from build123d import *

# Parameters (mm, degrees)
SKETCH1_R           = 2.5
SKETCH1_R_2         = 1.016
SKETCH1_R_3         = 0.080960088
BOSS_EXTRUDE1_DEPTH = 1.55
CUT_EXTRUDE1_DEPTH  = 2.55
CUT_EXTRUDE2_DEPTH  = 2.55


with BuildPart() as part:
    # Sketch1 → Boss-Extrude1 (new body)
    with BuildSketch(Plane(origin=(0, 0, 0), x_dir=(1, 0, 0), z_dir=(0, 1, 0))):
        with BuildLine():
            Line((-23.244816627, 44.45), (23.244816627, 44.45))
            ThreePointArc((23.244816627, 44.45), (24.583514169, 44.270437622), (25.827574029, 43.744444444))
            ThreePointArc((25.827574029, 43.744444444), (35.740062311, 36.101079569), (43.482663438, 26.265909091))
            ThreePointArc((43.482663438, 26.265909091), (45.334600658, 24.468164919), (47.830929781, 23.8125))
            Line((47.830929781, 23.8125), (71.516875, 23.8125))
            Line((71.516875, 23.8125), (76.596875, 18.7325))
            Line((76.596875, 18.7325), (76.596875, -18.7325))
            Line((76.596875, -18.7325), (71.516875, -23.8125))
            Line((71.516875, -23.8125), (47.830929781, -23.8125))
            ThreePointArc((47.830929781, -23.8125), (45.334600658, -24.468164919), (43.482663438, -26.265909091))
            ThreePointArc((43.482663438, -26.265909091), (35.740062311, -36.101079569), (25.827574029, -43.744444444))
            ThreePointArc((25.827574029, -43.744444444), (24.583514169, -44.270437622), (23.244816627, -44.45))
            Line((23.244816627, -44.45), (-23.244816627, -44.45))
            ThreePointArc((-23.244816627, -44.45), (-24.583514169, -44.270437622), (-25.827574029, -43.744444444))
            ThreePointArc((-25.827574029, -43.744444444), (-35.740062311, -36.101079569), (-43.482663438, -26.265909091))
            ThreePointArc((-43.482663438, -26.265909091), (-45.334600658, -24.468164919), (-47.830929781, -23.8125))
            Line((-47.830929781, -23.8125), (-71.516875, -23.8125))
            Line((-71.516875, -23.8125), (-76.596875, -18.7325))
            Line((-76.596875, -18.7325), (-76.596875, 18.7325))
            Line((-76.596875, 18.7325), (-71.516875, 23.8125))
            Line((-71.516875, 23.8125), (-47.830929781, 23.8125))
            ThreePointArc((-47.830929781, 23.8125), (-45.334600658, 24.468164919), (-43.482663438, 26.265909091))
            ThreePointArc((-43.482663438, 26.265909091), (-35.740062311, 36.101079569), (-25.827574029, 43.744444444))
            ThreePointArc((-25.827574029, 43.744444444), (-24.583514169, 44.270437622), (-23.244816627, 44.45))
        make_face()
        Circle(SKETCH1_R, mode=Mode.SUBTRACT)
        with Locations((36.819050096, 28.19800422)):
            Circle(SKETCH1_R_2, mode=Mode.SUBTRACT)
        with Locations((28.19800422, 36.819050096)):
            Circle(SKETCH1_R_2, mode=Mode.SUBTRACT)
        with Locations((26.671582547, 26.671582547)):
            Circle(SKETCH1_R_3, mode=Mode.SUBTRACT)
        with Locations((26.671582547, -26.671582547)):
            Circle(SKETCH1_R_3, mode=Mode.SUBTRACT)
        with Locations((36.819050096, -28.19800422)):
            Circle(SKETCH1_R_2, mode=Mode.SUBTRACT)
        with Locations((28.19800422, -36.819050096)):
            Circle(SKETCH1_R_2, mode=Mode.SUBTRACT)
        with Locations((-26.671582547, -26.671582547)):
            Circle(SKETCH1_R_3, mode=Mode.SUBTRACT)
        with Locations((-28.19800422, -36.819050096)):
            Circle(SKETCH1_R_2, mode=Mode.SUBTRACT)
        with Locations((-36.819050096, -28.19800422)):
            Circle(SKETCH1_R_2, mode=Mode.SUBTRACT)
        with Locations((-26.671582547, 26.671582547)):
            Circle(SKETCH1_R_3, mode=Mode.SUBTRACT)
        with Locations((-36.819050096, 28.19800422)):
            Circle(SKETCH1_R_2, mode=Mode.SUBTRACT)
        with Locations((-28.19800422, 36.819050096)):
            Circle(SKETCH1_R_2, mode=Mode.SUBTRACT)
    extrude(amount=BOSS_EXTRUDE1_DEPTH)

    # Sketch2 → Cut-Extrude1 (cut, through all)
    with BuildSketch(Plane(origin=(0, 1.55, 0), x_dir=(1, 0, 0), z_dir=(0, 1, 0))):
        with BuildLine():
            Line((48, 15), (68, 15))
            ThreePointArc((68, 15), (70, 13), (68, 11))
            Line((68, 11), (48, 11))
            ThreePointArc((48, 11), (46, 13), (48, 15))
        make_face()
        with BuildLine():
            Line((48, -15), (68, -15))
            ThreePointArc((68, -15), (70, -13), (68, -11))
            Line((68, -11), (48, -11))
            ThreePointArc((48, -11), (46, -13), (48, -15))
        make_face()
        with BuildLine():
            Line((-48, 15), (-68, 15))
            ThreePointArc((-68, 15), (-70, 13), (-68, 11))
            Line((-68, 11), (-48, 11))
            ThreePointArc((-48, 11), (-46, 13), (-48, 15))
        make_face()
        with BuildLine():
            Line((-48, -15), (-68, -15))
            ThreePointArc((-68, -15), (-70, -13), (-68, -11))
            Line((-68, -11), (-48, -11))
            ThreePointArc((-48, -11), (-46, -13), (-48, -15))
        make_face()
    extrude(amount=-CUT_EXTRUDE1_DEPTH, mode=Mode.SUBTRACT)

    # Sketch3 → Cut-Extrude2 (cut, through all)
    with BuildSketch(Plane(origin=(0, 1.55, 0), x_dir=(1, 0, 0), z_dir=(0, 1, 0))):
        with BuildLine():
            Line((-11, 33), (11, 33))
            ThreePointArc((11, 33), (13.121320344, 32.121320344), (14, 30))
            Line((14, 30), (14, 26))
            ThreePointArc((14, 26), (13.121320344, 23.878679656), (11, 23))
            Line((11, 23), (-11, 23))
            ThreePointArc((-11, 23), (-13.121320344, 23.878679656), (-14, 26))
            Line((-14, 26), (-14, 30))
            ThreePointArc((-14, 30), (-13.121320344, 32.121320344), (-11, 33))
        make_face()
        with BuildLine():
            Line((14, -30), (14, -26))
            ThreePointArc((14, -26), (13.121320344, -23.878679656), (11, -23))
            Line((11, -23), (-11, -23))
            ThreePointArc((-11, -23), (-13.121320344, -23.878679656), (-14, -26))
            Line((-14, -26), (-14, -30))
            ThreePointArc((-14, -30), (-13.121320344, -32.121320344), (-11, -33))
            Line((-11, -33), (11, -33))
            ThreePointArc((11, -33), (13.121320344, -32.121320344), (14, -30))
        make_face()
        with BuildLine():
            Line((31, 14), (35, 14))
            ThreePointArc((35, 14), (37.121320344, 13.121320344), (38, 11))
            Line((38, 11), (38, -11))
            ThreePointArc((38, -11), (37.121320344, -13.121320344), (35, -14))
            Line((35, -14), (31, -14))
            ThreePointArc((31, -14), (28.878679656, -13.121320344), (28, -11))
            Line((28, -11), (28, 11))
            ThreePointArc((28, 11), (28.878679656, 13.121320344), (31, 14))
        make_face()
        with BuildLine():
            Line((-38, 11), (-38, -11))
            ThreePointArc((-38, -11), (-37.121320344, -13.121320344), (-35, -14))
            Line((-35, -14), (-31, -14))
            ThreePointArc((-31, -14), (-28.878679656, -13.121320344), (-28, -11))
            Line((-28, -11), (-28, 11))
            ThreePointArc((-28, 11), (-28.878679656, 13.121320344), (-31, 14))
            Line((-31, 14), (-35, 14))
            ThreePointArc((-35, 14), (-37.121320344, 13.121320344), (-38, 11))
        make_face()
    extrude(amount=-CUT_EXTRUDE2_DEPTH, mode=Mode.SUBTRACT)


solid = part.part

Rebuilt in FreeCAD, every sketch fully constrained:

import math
import FreeCAD as App
import Part
import Sketcher
Q = App.Units.Quantity

doc = App.newDocument("Part")
body = doc.addObject("PartDesign::Body", "Body")

sketch1 = body.newObject("Sketcher::SketchObject", "Sketch")
sketch1.AttachmentSupport = (doc.getObject("XZ_Plane"), [""])
sketch1.MapMode = "FlatFace"
sketch1.addGeometry([
    Part.LineSegment(App.Vector(23.24, -44.45, 0), App.Vector(-23.24, -44.45, 0)),
    Part.ArcOfCircle(Part.Circle(App.Vector(-23.24, -39.37, 0), App.Vector(0, 0, 1), 5.08), math.radians(-121), math.radians(-90)),
    Part.ArcOfCircle(Part.Circle(App.Vector(0, 0, 0), App.Vector(0, 0, 1), 50.8), math.radians(-149), math.radians(-121)),
    Part.ArcOfCircle(Part.Circle(App.Vector(-47.83, -28.89, 0), App.Vector(0, 0, 1), 5.08), math.radians(31), math.radians(90)),
    Part.LineSegment(App.Vector(-47.83, -23.81, 0), App.Vector(-71.52, -23.81, 0)),
    Part.LineSegment(App.Vector(-71.52, -23.81, 0), App.Vector(-76.6, -18.73, 0)),
    Part.LineSegment(App.Vector(-76.6, -18.73, 0), App.Vector(-76.6, 18.73, 0)),
    Part.LineSegment(App.Vector(-76.6, 18.73, 0), App.Vector(-71.52, 23.81, 0)),
    Part.LineSegment(App.Vector(-71.52, 23.81, 0), App.Vector(-47.83, 23.81, 0)),
    Part.ArcOfCircle(Part.Circle(App.Vector(-47.83, 28.89, 0), App.Vector(0, 0, 1), 5.08), math.radians(-90), math.radians(-31)),
    Part.ArcOfCircle(Part.Circle(App.Vector(0, 0, 0), App.Vector(0, 0, 1), 50.8), math.radians(121), math.radians(149)),
    Part.ArcOfCircle(Part.Circle(App.Vector(-23.24, 39.37, 0), App.Vector(0, 0, 1), 5.08), math.radians(90), math.radians(121)),
    Part.LineSegment(App.Vector(-23.24, 44.45, 0), App.Vector(23.24, 44.45, 0)),
    Part.ArcOfCircle(Part.Circle(App.Vector(23.24, 39.37, 0), App.Vector(0, 0, 1), 5.08), math.radians(59), math.radians(90)),
    Part.ArcOfCircle(Part.Circle(App.Vector(0, 0, 0), App.Vector(0, 0, 1), 50.8), math.radians(31), math.radians(59)),
    Part.ArcOfCircle(Part.Circle(App.Vector(47.83, 28.89, 0), App.Vector(0, 0, 1), 5.08), math.radians(-149), math.radians(-90)),
    Part.LineSegment(App.Vector(47.83, 23.81, 0), App.Vector(71.52, 23.81, 0)),
    Part.LineSegment(App.Vector(71.52, 23.81, 0), App.Vector(76.6, 18.73, 0)),
    Part.LineSegment(App.Vector(76.6, 18.73, 0), App.Vector(76.6, -18.73, 0)),
    Part.LineSegment(App.Vector(76.6, -18.73, 0), App.Vector(71.52, -23.81, 0)),
    Part.LineSegment(App.Vector(71.52, -23.81, 0), App.Vector(47.83, -23.81, 0)),
    Part.ArcOfCircle(Part.Circle(App.Vector(47.83, -28.89, 0), App.Vector(0, 0, 1), 5.08), math.radians(90), math.radians(149)),
    Part.ArcOfCircle(Part.Circle(App.Vector(0, 0, 0), App.Vector(0, 0, 1), 50.8), math.radians(-59), math.radians(-31)),
    Part.ArcOfCircle(Part.Circle(App.Vector(23.24, -39.37, 0), App.Vector(0, 0, 1), 5.08), math.radians(-90), math.radians(-59)),
    Part.Circle(App.Vector(28.2, 36.82, 0), App.Vector(0, 0, 1), 1.02),
    Part.Circle(App.Vector(36.82, 28.2, 0), App.Vector(0, 0, 1), 1.02),
    Part.Circle(App.Vector(26.67, 26.67, 0), App.Vector(0, 0, 1), 0.08),
    Part.Circle(App.Vector(-28.2, 36.82, 0), App.Vector(0, 0, 1), 1.02),
    Part.Circle(App.Vector(-26.67, 26.67, 0), App.Vector(0, 0, 1), 0.08),
    Part.Circle(App.Vector(-36.82, 28.2, 0), App.Vector(0, 0, 1), 1.02),
    Part.Circle(App.Vector(36.82, -28.2, 0), App.Vector(0, 0, 1), 1.02),
    Part.Circle(App.Vector(26.67, -26.67, 0), App.Vector(0, 0, 1), 0.08),
    Part.Circle(App.Vector(28.2, -36.82, 0), App.Vector(0, 0, 1), 1.02),
    Part.Circle(App.Vector(0, 0, 0), App.Vector(0, 0, 1), 2.5),
    Part.Circle(App.Vector(-26.67, -26.67, 0), App.Vector(0, 0, 1), 0.08),
    Part.Circle(App.Vector(-36.82, -28.2, 0), App.Vector(0, 0, 1), 1.02),
    Part.Circle(App.Vector(-28.2, -36.82, 0), App.Vector(0, 0, 1), 1.02),
], False)
sketch1.addConstraint([
    Sketcher.Constraint("Tangent", 0, 2, 1, 2),
    Sketcher.Constraint("Tangent", 1, 1, 2, 2),
    Sketcher.Constraint("Tangent", 2, 1, 3, 1),
    Sketcher.Constraint("Tangent", 3, 2, 4, 1),
    Sketcher.Constraint("Coincident", 4, 2, 5, 1),
    Sketcher.Constraint("Coincident", 5, 2, 6, 1),
    Sketcher.Constraint("Coincident", 6, 2, 7, 1),
    Sketcher.Constraint("Coincident", 7, 2, 8, 1),
    Sketcher.Constraint("Tangent", 8, 2, 9, 1),
    Sketcher.Constraint("Tangent", 9, 2, 10, 2),
    Sketcher.Constraint("Tangent", 10, 1, 11, 2),
    Sketcher.Constraint("Tangent", 11, 1, 12, 1),
    Sketcher.Constraint("Tangent", 12, 2, 13, 2),
    Sketcher.Constraint("Tangent", 13, 1, 14, 2),
    Sketcher.Constraint("Tangent", 14, 1, 15, 1),
    Sketcher.Constraint("Tangent", 15, 2, 16, 1),
    Sketcher.Constraint("Coincident", 16, 2, 17, 1),
    Sketcher.Constraint("Coincident", 17, 2, 18, 1),
    Sketcher.Constraint("Coincident", 18, 2, 19, 1),
    Sketcher.Constraint("Coincident", 19, 2, 20, 1),
    Sketcher.Constraint("Tangent", 20, 2, 21, 1),
    Sketcher.Constraint("Tangent", 21, 2, 22, 2),
    Sketcher.Constraint("Tangent", 22, 1, 23, 2),
    Sketcher.Constraint("Tangent", 23, 1, 0, 1),
    Sketcher.Constraint("Horizontal", 0),
    Sketcher.Constraint("Horizontal", 4),
    Sketcher.Constraint("Vertical", 6),
    Sketcher.Constraint("Horizontal", 8),
    Sketcher.Constraint("Horizontal", 12),
    Sketcher.Constraint("Horizontal", 16),
    Sketcher.Constraint("Vertical", 18),
    Sketcher.Constraint("Horizontal", 20),
    Sketcher.Constraint("Coincident", 2, 3, -1, 1),
    Sketcher.Constraint("Coincident", 10, 3, -1, 1),
    Sketcher.Constraint("Coincident", 14, 3, -1, 1),
    Sketcher.Constraint("Coincident", 22, 3, -1, 1),
    Sketcher.Constraint("Coincident", 33, 3, -1, 1),
    Sketcher.Constraint("Equal", 1, 3),
    Sketcher.Constraint("Equal", 3, 9),
    Sketcher.Constraint("Equal", 2, 10),
    Sketcher.Constraint("Equal", 9, 11),
    Sketcher.Constraint("Equal", 11, 13),
    Sketcher.Constraint("Equal", 10, 14),
    Sketcher.Constraint("Equal", 13, 15),
    Sketcher.Constraint("Equal", 15, 21),
    Sketcher.Constraint("Equal", 14, 22),
    Sketcher.Constraint("Equal", 21, 23),
    Sketcher.Constraint("Equal", 24, 25),
    Sketcher.Constraint("Equal", 25, 27),
    Sketcher.Constraint("Equal", 26, 28),
    Sketcher.Constraint("Equal", 27, 29),
    Sketcher.Constraint("Equal", 29, 30),
    Sketcher.Constraint("Equal", 28, 31),
    Sketcher.Constraint("Equal", 30, 32),
    Sketcher.Constraint("Equal", 31, 34),
    Sketcher.Constraint("Equal", 32, 35),
    Sketcher.Constraint("Equal", 35, 36),
    Sketcher.Constraint("Symmetric", 29, 3, 30, 3, -1, 1),
    Sketcher.Constraint("Symmetric", 28, 3, 31, 3, -1, 1),
    Sketcher.Constraint("Symmetric", 27, 3, 32, 3, -1, 1),
    Sketcher.Constraint("Symmetric", 26, 3, 34, 3, -1, 1),
    Sketcher.Constraint("Symmetric", 25, 3, 35, 3, -1, 1),
    Sketcher.Constraint("Symmetric", 24, 3, 36, 3, -1, 1),
    Sketcher.Constraint("Symmetric", 4, 2, 16, 2, -1, 1),
    Sketcher.Constraint("Symmetric", 5, 2, 17, 2, -1, 1),
    Sketcher.Constraint("Symmetric", 7, 2, 19, 2, -1, 1),
    Sketcher.Constraint("Symmetric", 24, 3, 27, 3, -2),
    Sketcher.Constraint("Symmetric", 26, 3, 28, 3, -2),
    Sketcher.Constraint("Symmetric", 25, 3, 29, 3, -2),
    Sketcher.Constraint("Symmetric", 7, 2, 16, 2, -2),
    Sketcher.Constraint("Perpendicular", 5, 7),
    Sketcher.Constraint("Perpendicular", 17, 19),
    Sketcher.Constraint("Horizontal", 6, 2, 17, 2),
    Sketcher.Constraint("Vertical", 1, 3, 11, 3),
    Sketcher.Constraint("Diameter", 33, Q("5 mm")),
    Sketcher.Constraint("Radius", 2, Q("50.8 mm")),
    Sketcher.Constraint("Radius", 1, Q("5.08 mm")),
    Sketcher.Constraint("Diameter", 24, Q("2.032 mm")),
    Sketcher.Constraint("Diameter", 26, Q("0.16192 mm")),
    Sketcher.Constraint("DistanceY", 6, 1, 6, 2, Q("37.465 mm")),
    Sketcher.Constraint("DistanceY", 1, 3, -1, 1, Q("39.37 mm")),
    Sketcher.Constraint("DistanceX", 5, 2, 4, 2, Q("5.08 mm")),
    Sketcher.Constraint("DistanceX", 4, 2, 4, 1, Q("23.685945 mm")),
    Sketcher.Constraint("DistanceY", -1, 1, 24, 3, Q("36.81905 mm")),
    Sketcher.Constraint("DistanceX", -1, 1, 25, 3, Q("36.81905 mm")),
    Sketcher.Constraint("DistanceX", 26, 3, 24, 3, Q("1.526422 mm")),
    Sketcher.Constraint("DistanceY", 26, 3, 25, 3, Q("1.526422 mm")),
    Sketcher.Constraint("DistanceX", 36, 3, 1, 1, Q("2.37043 mm")),
    Sketcher.Constraint("DistanceY", 1, 1, 34, 3, Q("17.072862 mm")),
])
pad1 = body.newObject("PartDesign::Pad", "Pad")
pad1.Profile = sketch1
pad1.Length = 1.55
pad1.Reversed = True

sketch2 = body.newObject("Sketcher::SketchObject", "Sketch001")
sketch2.AttachmentSupport = (doc.getObject("XZ_Plane"), [""])
sketch2.MapMode = "FlatFace"
sketch2.AttachmentOffset = App.Placement(App.Vector(0, 0, -1.55), App.Rotation())
sketch2.addGeometry([
    Part.LineSegment(App.Vector(68, -15, 0), App.Vector(48, -15, 0)),
    Part.ArcOfCircle(Part.Circle(App.Vector(48, -13, 0), App.Vector(0, 0, 1), 2), math.radians(90), math.radians(270)),
    Part.LineSegment(App.Vector(48, -11, 0), App.Vector(68, -11, 0)),
    Part.ArcOfCircle(Part.Circle(App.Vector(68, -13, 0), App.Vector(0, 0, 1), 2), math.radians(-90), math.radians(90)),
    Part.LineSegment(App.Vector(48, 15, 0), App.Vector(68, 15, 0)),
    Part.ArcOfCircle(Part.Circle(App.Vector(68, 13, 0), App.Vector(0, 0, 1), 2), math.radians(-90), math.radians(90)),
    Part.LineSegment(App.Vector(68, 11, 0), App.Vector(48, 11, 0)),
    Part.ArcOfCircle(Part.Circle(App.Vector(48, 13, 0), App.Vector(0, 0, 1), 2), math.radians(90), math.radians(270)),
    Part.LineSegment(App.Vector(-48, -15, 0), App.Vector(-68, -15, 0)),
    Part.ArcOfCircle(Part.Circle(App.Vector(-68, -13, 0), App.Vector(0, 0, 1), 2), math.radians(90), math.radians(270)),
    Part.LineSegment(App.Vector(-68, -11, 0), App.Vector(-48, -11, 0)),
    Part.ArcOfCircle(Part.Circle(App.Vector(-48, -13, 0), App.Vector(0, 0, 1), 2), math.radians(-90), math.radians(90)),
    Part.LineSegment(App.Vector(-68, 15, 0), App.Vector(-48, 15, 0)),
    Part.ArcOfCircle(Part.Circle(App.Vector(-48, 13, 0), App.Vector(0, 0, 1), 2), math.radians(-90), math.radians(90)),
    Part.LineSegment(App.Vector(-48, 11, 0), App.Vector(-68, 11, 0)),
    Part.ArcOfCircle(Part.Circle(App.Vector(-68, 13, 0), App.Vector(0, 0, 1), 2), math.radians(90), math.radians(270)),
], False)
sketch2.addConstraint([
    Sketcher.Constraint("Tangent", 0, 2, 1, 2),
    Sketcher.Constraint("Tangent", 1, 1, 2, 1),
    Sketcher.Constraint("Tangent", 2, 2, 3, 2),
    Sketcher.Constraint("Tangent", 3, 1, 0, 1),
    Sketcher.Constraint("Tangent", 4, 2, 5, 2),
    Sketcher.Constraint("Tangent", 5, 1, 6, 1),
    Sketcher.Constraint("Tangent", 6, 2, 7, 2),
    Sketcher.Constraint("Tangent", 7, 1, 4, 1),
    Sketcher.Constraint("Tangent", 8, 2, 9, 2),
    Sketcher.Constraint("Tangent", 9, 1, 10, 1),
    Sketcher.Constraint("Tangent", 10, 2, 11, 2),
    Sketcher.Constraint("Tangent", 11, 1, 8, 1),
    Sketcher.Constraint("Tangent", 12, 2, 13, 2),
    Sketcher.Constraint("Tangent", 13, 1, 14, 1),
    Sketcher.Constraint("Tangent", 14, 2, 15, 2),
    Sketcher.Constraint("Tangent", 15, 1, 12, 1),
    Sketcher.Constraint("Horizontal", 0),
    Sketcher.Constraint("Horizontal", 2),
    Sketcher.Constraint("Horizontal", 4),
    Sketcher.Constraint("Horizontal", 6),
    Sketcher.Constraint("Horizontal", 8),
    Sketcher.Constraint("Horizontal", 10),
    Sketcher.Constraint("Horizontal", 12),
    Sketcher.Constraint("Horizontal", 14),
    Sketcher.Constraint("Equal", 3, 5),
    Sketcher.Constraint("Equal", 7, 9),
    Sketcher.Constraint("Equal", 11, 13),
    Sketcher.Constraint("Symmetric", 5, 3, 9, 3, -1, 1),
    Sketcher.Constraint("Symmetric", 1, 3, 13, 3, -1, 1),
    Sketcher.Constraint("Symmetric", 3, 3, 9, 3, -2),
    Sketcher.Constraint("Vertical", 1, 3, 7, 3),
    Sketcher.Constraint("Vertical", 11, 3, 13, 3),
    Sketcher.Constraint("Vertical", 9, 3, 15, 3),
    Sketcher.Constraint("Radius", 1, Q("2 mm")),
    Sketcher.Constraint("DistanceX", 0, 2, 0, 1, Q("20 mm")),
    Sketcher.Constraint("DistanceX", -1, 1, 1, 3, Q("48 mm")),
    Sketcher.Constraint("DistanceY", 1, 3, -1, 1, Q("13 mm")),
])
pocket1 = body.newObject("PartDesign::Pocket", "Pocket")
pocket1.Profile = sketch2
pocket1.Type = "ThroughAll"
pocket1.Reversed = True

sketch3 = body.newObject("Sketcher::SketchObject", "Sketch002")
sketch3.AttachmentSupport = (doc.getObject("XZ_Plane"), [""])
sketch3.MapMode = "FlatFace"
sketch3.AttachmentOffset = App.Placement(App.Vector(0, 0, -1.55), App.Rotation())
sketch3.addGeometry([
    Part.LineSegment(App.Vector(11, -33, 0), App.Vector(-11, -33, 0)),
    Part.ArcOfCircle(Part.Circle(App.Vector(-11, -30, 0), App.Vector(0, 0, 1), 3), math.radians(180), math.radians(270)),
    Part.LineSegment(App.Vector(-14, -30, 0), App.Vector(-14, -26, 0)),
    Part.ArcOfCircle(Part.Circle(App.Vector(-11, -26, 0), App.Vector(0, 0, 1), 3), math.radians(90), math.radians(180)),
    Part.LineSegment(App.Vector(-11, -23, 0), App.Vector(11, -23, 0)),
    Part.ArcOfCircle(Part.Circle(App.Vector(11, -26, 0), App.Vector(0, 0, 1), 3), math.radians(0), math.radians(90)),
    Part.LineSegment(App.Vector(14, -26, 0), App.Vector(14, -30, 0)),
    Part.ArcOfCircle(Part.Circle(App.Vector(11, -30, 0), App.Vector(0, 0, 1), 3), math.radians(-90), math.radians(0)),
    Part.LineSegment(App.Vector(14, 30, 0), App.Vector(14, 26, 0)),
    Part.ArcOfCircle(Part.Circle(App.Vector(11, 26, 0), App.Vector(0, 0, 1), 3), math.radians(-90), math.radians(0)),
    Part.LineSegment(App.Vector(11, 23, 0), App.Vector(-11, 23, 0)),
    Part.ArcOfCircle(Part.Circle(App.Vector(-11, 26, 0), App.Vector(0, 0, 1), 3), math.radians(180), math.radians(270)),
    Part.LineSegment(App.Vector(-14, 26, 0), App.Vector(-14, 30, 0)),
    Part.ArcOfCircle(Part.Circle(App.Vector(-11, 30, 0), App.Vector(0, 0, 1), 3), math.radians(90), math.radians(180)),
    Part.LineSegment(App.Vector(-11, 33, 0), App.Vector(11, 33, 0)),
    Part.ArcOfCircle(Part.Circle(App.Vector(11, 30, 0), App.Vector(0, 0, 1), 3), math.radians(0), math.radians(90)),
    Part.LineSegment(App.Vector(35, -14, 0), App.Vector(31, -14, 0)),
    Part.ArcOfCircle(Part.Circle(App.Vector(31, -11, 0), App.Vector(0, 0, 1), 3), math.radians(180), math.radians(270)),
    Part.LineSegment(App.Vector(28, -11, 0), App.Vector(28, 11, 0)),
    Part.ArcOfCircle(Part.Circle(App.Vector(31, 11, 0), App.Vector(0, 0, 1), 3), math.radians(90), math.radians(180)),
    Part.LineSegment(App.Vector(31, 14, 0), App.Vector(35, 14, 0)),
    Part.ArcOfCircle(Part.Circle(App.Vector(35, 11, 0), App.Vector(0, 0, 1), 3), math.radians(0), math.radians(90)),
    Part.LineSegment(App.Vector(38, 11, 0), App.Vector(38, -11, 0)),
    Part.ArcOfCircle(Part.Circle(App.Vector(35, -11, 0), App.Vector(0, 0, 1), 3), math.radians(-90), math.radians(0)),
    Part.LineSegment(App.Vector(-38, -11, 0), App.Vector(-38, 11, 0)),
    Part.ArcOfCircle(Part.Circle(App.Vector(-35, 11, 0), App.Vector(0, 0, 1), 3), math.radians(90), math.radians(180)),
    Part.LineSegment(App.Vector(-35, 14, 0), App.Vector(-31, 14, 0)),
    Part.ArcOfCircle(Part.Circle(App.Vector(-31, 11, 0), App.Vector(0, 0, 1), 3), math.radians(0), math.radians(90)),
    Part.LineSegment(App.Vector(-28, 11, 0), App.Vector(-28, -11, 0)),
    Part.ArcOfCircle(Part.Circle(App.Vector(-31, -11, 0), App.Vector(0, 0, 1), 3), math.radians(-90), math.radians(0)),
    Part.LineSegment(App.Vector(-31, -14, 0), App.Vector(-35, -14, 0)),
    Part.ArcOfCircle(Part.Circle(App.Vector(-35, -11, 0), App.Vector(0, 0, 1), 3), math.radians(180), math.radians(270)),
], False)
sketch3.addConstraint([
    Sketcher.Constraint("Tangent", 0, 2, 1, 2),
    Sketcher.Constraint("Tangent", 1, 1, 2, 1),
    Sketcher.Constraint("Tangent", 2, 2, 3, 2),
    Sketcher.Constraint("Tangent", 3, 1, 4, 1),
    Sketcher.Constraint("Tangent", 4, 2, 5, 2),
    Sketcher.Constraint("Tangent", 5, 1, 6, 1),
    Sketcher.Constraint("Tangent", 6, 2, 7, 2),
    Sketcher.Constraint("Tangent", 7, 1, 0, 1),
    Sketcher.Constraint("Tangent", 8, 2, 9, 2),
    Sketcher.Constraint("Tangent", 9, 1, 10, 1),
    Sketcher.Constraint("Tangent", 10, 2, 11, 2),
    Sketcher.Constraint("Tangent", 11, 1, 12, 1),
    Sketcher.Constraint("Tangent", 12, 2, 13, 2),
    Sketcher.Constraint("Tangent", 13, 1, 14, 1),
    Sketcher.Constraint("Tangent", 14, 2, 15, 2),
    Sketcher.Constraint("Tangent", 15, 1, 8, 1),
    Sketcher.Constraint("Tangent", 16, 2, 17, 2),
    Sketcher.Constraint("Tangent", 17, 1, 18, 1),
    Sketcher.Constraint("Tangent", 18, 2, 19, 2),
    Sketcher.Constraint("Tangent", 19, 1, 20, 1),
    Sketcher.Constraint("Tangent", 20, 2, 21, 2),
    Sketcher.Constraint("Tangent", 21, 1, 22, 1),
    Sketcher.Constraint("Tangent", 22, 2, 23, 2),
    Sketcher.Constraint("Tangent", 23, 1, 16, 1),
    Sketcher.Constraint("Tangent", 24, 2, 25, 2),
    Sketcher.Constraint("Tangent", 25, 1, 26, 1),
    Sketcher.Constraint("Tangent", 26, 2, 27, 2),
    Sketcher.Constraint("Tangent", 27, 1, 28, 1),
    Sketcher.Constraint("Tangent", 28, 2, 29, 2),
    Sketcher.Constraint("Tangent", 29, 1, 30, 1),
    Sketcher.Constraint("Tangent", 30, 2, 31, 2),
    Sketcher.Constraint("Tangent", 31, 1, 24, 1),
    Sketcher.Constraint("Horizontal", 0),
    Sketcher.Constraint("Vertical", 2),
    Sketcher.Constraint("Horizontal", 4),
    Sketcher.Constraint("Vertical", 6),
    Sketcher.Constraint("Vertical", 8),
    Sketcher.Constraint("Horizontal", 10),
    Sketcher.Constraint("Vertical", 12),
    Sketcher.Constraint("Horizontal", 14),
    Sketcher.Constraint("Horizontal", 16),
    Sketcher.Constraint("Vertical", 18),
    Sketcher.Constraint("Horizontal", 20),
    Sketcher.Constraint("Vertical", 22),
    Sketcher.Constraint("Vertical", 24),
    Sketcher.Constraint("Horizontal", 26),
    Sketcher.Constraint("Vertical", 28),
    Sketcher.Constraint("Horizontal", 30),
    Sketcher.Constraint("Equal", 1, 3),
    Sketcher.Constraint("Equal", 3, 5),
    Sketcher.Constraint("Equal", 5, 7),
    Sketcher.Constraint("Equal", 7, 9),
    Sketcher.Constraint("Equal", 9, 11),
    Sketcher.Constraint("Equal", 11, 13),
    Sketcher.Constraint("Equal", 13, 15),
    Sketcher.Constraint("Equal", 15, 17),
    Sketcher.Constraint("Equal", 17, 19),
    Sketcher.Constraint("Equal", 19, 21),
    Sketcher.Constraint("Equal", 21, 23),
    Sketcher.Constraint("Equal", 23, 25),
    Sketcher.Constraint("Equal", 25, 27),
    Sketcher.Constraint("Equal", 27, 29),
    Sketcher.Constraint("Equal", 29, 31),
    Sketcher.Constraint("Symmetric", 3, 3, 9, 3, -1, 1),
    Sketcher.Constraint("Symmetric", 7, 3, 13, 3, -1, 1),
    Sketcher.Constraint("Symmetric", 23, 3, 25, 3, -1, 1),
    Sketcher.Constraint("Symmetric", 19, 3, 29, 3, -1, 1),
    Sketcher.Constraint("Horizontal", 21, 3, 25, 3),
    Sketcher.Constraint("Vertical", 7, 3, 9, 3),
    Sketcher.Constraint("Equal", 30, 2),
    Sketcher.Constraint("Equal", 14, 18),
    Sketcher.Constraint("Radius", 1, Q("3 mm")),
    Sketcher.Constraint("DistanceX", 0, 2, 0, 1, Q("22 mm")),
    Sketcher.Constraint("DistanceX", 16, 2, 16, 1, Q("4 mm")),
    Sketcher.Constraint("DistanceY", 1, 3, -1, 1, Q("30 mm")),
    Sketcher.Constraint("DistanceX", -1, 1, 17, 3, Q("31 mm")),
])
pocket2 = body.newObject("PartDesign::Pocket", "Pocket001")
pocket2.Profile = sketch3
pocket2.Type = "ThroughAll"
pocket2.Reversed = True

doc.recompute()
